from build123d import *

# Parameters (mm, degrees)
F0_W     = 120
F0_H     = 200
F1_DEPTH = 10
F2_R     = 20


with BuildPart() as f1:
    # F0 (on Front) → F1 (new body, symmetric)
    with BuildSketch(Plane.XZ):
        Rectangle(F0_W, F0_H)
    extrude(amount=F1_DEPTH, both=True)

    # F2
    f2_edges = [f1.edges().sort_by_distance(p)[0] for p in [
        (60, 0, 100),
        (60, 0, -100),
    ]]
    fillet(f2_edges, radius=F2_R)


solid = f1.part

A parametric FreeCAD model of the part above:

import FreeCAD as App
import Part
import Sketcher
from FreeCAD import Vector
Q = App.Units.Quantity


def edges_at(feature, points):
    """Names of the edges that pass closest to the given points."""
    edges = feature.Shape.Edges
    near = lambda p: min(range(len(edges)), key=lambda i: edges[i].distToShape(Part.Vertex(*p))[0])
    return sorted({f"Edge{near(p) + 1}" for p in points})

doc = App.newDocument("Part")
params = doc.addObject("Spreadsheet::Sheet", "Params")
for row, (alias, value) in enumerate([
    ("sketch1_width", "120 mm"),
    ("sketch1_height", "200 mm"),
    ("pad1_length", "20 mm"),
    ("fillet_radius", "20 mm"),
], start=1):
    params.set(f"A{row}", alias)
    params.set(f"B{row}", "=" + value)
    params.setAlias(f"B{row}", alias)

body = doc.addObject("PartDesign::Body", "Body")

sketch1 = body.newObject("Sketcher::SketchObject", "Sketch")
sketch1.AttachmentSupport = (doc.getObject("XZ_Plane"), [""])
sketch1.MapMode = "FlatFace"
sketch1.addGeometry([
    Part.LineSegment(Vector(-60, 100, 0), Vector(-60, -100, 0)),
    Part.LineSegment(Vector(-60, -100, 0), Vector(60, -100, 0)),
    Part.LineSegment(Vector(60, -100, 0), Vector(60, 100, 0)),
    Part.LineSegment(Vector(60, 100, 0), Vector(-60, 100, 0)),
], False)
sketch1.addConstraint([
    Sketcher.Constraint("Coincident", 0, 2, 1, 1),
    Sketcher.Constraint("Coincident", 1, 2, 2, 1),
    Sketcher.Constraint("Coincident", 2, 2, 3, 1),
    Sketcher.Constraint("Coincident", 3, 2, 0, 1),
    Sketcher.Constraint("Vertical", 0),
    Sketcher.Constraint("Horizontal", 1),
    Sketcher.Constraint("Vertical", 2),
    Sketcher.Constraint("Horizontal", 3),
    Sketcher.Constraint("Symmetric", 0, 2, 2, 2, -1, 1),
    Sketcher.Constraint("DistanceX", 1, 1, 1, 2, Q("120 mm")),
    Sketcher.Constraint("DistanceY", 0, 2, 0, 1, Q("200 mm")),
])
sketch1.setExpression("Constraints[9]", "Params.sketch1_width")
sketch1.setExpression("Constraints[10]", "Params.sketch1_height")
pad1 = body.newObject("PartDesign::Pad", "Pad")
pad1.Profile = sketch1
pad1.setExpression("Length", "Params.pad1_length")
pad1.Midplane = True
doc.recompute()

fillet = body.newObject("PartDesign::Fillet", "Fillet")
fillet.Base = (pad1, edges_at(pad1, [(60, 0, 100), (60, 0, -100)]))
fillet.setExpression("Radius", "Params.fillet_radius")

doc.recompute()
